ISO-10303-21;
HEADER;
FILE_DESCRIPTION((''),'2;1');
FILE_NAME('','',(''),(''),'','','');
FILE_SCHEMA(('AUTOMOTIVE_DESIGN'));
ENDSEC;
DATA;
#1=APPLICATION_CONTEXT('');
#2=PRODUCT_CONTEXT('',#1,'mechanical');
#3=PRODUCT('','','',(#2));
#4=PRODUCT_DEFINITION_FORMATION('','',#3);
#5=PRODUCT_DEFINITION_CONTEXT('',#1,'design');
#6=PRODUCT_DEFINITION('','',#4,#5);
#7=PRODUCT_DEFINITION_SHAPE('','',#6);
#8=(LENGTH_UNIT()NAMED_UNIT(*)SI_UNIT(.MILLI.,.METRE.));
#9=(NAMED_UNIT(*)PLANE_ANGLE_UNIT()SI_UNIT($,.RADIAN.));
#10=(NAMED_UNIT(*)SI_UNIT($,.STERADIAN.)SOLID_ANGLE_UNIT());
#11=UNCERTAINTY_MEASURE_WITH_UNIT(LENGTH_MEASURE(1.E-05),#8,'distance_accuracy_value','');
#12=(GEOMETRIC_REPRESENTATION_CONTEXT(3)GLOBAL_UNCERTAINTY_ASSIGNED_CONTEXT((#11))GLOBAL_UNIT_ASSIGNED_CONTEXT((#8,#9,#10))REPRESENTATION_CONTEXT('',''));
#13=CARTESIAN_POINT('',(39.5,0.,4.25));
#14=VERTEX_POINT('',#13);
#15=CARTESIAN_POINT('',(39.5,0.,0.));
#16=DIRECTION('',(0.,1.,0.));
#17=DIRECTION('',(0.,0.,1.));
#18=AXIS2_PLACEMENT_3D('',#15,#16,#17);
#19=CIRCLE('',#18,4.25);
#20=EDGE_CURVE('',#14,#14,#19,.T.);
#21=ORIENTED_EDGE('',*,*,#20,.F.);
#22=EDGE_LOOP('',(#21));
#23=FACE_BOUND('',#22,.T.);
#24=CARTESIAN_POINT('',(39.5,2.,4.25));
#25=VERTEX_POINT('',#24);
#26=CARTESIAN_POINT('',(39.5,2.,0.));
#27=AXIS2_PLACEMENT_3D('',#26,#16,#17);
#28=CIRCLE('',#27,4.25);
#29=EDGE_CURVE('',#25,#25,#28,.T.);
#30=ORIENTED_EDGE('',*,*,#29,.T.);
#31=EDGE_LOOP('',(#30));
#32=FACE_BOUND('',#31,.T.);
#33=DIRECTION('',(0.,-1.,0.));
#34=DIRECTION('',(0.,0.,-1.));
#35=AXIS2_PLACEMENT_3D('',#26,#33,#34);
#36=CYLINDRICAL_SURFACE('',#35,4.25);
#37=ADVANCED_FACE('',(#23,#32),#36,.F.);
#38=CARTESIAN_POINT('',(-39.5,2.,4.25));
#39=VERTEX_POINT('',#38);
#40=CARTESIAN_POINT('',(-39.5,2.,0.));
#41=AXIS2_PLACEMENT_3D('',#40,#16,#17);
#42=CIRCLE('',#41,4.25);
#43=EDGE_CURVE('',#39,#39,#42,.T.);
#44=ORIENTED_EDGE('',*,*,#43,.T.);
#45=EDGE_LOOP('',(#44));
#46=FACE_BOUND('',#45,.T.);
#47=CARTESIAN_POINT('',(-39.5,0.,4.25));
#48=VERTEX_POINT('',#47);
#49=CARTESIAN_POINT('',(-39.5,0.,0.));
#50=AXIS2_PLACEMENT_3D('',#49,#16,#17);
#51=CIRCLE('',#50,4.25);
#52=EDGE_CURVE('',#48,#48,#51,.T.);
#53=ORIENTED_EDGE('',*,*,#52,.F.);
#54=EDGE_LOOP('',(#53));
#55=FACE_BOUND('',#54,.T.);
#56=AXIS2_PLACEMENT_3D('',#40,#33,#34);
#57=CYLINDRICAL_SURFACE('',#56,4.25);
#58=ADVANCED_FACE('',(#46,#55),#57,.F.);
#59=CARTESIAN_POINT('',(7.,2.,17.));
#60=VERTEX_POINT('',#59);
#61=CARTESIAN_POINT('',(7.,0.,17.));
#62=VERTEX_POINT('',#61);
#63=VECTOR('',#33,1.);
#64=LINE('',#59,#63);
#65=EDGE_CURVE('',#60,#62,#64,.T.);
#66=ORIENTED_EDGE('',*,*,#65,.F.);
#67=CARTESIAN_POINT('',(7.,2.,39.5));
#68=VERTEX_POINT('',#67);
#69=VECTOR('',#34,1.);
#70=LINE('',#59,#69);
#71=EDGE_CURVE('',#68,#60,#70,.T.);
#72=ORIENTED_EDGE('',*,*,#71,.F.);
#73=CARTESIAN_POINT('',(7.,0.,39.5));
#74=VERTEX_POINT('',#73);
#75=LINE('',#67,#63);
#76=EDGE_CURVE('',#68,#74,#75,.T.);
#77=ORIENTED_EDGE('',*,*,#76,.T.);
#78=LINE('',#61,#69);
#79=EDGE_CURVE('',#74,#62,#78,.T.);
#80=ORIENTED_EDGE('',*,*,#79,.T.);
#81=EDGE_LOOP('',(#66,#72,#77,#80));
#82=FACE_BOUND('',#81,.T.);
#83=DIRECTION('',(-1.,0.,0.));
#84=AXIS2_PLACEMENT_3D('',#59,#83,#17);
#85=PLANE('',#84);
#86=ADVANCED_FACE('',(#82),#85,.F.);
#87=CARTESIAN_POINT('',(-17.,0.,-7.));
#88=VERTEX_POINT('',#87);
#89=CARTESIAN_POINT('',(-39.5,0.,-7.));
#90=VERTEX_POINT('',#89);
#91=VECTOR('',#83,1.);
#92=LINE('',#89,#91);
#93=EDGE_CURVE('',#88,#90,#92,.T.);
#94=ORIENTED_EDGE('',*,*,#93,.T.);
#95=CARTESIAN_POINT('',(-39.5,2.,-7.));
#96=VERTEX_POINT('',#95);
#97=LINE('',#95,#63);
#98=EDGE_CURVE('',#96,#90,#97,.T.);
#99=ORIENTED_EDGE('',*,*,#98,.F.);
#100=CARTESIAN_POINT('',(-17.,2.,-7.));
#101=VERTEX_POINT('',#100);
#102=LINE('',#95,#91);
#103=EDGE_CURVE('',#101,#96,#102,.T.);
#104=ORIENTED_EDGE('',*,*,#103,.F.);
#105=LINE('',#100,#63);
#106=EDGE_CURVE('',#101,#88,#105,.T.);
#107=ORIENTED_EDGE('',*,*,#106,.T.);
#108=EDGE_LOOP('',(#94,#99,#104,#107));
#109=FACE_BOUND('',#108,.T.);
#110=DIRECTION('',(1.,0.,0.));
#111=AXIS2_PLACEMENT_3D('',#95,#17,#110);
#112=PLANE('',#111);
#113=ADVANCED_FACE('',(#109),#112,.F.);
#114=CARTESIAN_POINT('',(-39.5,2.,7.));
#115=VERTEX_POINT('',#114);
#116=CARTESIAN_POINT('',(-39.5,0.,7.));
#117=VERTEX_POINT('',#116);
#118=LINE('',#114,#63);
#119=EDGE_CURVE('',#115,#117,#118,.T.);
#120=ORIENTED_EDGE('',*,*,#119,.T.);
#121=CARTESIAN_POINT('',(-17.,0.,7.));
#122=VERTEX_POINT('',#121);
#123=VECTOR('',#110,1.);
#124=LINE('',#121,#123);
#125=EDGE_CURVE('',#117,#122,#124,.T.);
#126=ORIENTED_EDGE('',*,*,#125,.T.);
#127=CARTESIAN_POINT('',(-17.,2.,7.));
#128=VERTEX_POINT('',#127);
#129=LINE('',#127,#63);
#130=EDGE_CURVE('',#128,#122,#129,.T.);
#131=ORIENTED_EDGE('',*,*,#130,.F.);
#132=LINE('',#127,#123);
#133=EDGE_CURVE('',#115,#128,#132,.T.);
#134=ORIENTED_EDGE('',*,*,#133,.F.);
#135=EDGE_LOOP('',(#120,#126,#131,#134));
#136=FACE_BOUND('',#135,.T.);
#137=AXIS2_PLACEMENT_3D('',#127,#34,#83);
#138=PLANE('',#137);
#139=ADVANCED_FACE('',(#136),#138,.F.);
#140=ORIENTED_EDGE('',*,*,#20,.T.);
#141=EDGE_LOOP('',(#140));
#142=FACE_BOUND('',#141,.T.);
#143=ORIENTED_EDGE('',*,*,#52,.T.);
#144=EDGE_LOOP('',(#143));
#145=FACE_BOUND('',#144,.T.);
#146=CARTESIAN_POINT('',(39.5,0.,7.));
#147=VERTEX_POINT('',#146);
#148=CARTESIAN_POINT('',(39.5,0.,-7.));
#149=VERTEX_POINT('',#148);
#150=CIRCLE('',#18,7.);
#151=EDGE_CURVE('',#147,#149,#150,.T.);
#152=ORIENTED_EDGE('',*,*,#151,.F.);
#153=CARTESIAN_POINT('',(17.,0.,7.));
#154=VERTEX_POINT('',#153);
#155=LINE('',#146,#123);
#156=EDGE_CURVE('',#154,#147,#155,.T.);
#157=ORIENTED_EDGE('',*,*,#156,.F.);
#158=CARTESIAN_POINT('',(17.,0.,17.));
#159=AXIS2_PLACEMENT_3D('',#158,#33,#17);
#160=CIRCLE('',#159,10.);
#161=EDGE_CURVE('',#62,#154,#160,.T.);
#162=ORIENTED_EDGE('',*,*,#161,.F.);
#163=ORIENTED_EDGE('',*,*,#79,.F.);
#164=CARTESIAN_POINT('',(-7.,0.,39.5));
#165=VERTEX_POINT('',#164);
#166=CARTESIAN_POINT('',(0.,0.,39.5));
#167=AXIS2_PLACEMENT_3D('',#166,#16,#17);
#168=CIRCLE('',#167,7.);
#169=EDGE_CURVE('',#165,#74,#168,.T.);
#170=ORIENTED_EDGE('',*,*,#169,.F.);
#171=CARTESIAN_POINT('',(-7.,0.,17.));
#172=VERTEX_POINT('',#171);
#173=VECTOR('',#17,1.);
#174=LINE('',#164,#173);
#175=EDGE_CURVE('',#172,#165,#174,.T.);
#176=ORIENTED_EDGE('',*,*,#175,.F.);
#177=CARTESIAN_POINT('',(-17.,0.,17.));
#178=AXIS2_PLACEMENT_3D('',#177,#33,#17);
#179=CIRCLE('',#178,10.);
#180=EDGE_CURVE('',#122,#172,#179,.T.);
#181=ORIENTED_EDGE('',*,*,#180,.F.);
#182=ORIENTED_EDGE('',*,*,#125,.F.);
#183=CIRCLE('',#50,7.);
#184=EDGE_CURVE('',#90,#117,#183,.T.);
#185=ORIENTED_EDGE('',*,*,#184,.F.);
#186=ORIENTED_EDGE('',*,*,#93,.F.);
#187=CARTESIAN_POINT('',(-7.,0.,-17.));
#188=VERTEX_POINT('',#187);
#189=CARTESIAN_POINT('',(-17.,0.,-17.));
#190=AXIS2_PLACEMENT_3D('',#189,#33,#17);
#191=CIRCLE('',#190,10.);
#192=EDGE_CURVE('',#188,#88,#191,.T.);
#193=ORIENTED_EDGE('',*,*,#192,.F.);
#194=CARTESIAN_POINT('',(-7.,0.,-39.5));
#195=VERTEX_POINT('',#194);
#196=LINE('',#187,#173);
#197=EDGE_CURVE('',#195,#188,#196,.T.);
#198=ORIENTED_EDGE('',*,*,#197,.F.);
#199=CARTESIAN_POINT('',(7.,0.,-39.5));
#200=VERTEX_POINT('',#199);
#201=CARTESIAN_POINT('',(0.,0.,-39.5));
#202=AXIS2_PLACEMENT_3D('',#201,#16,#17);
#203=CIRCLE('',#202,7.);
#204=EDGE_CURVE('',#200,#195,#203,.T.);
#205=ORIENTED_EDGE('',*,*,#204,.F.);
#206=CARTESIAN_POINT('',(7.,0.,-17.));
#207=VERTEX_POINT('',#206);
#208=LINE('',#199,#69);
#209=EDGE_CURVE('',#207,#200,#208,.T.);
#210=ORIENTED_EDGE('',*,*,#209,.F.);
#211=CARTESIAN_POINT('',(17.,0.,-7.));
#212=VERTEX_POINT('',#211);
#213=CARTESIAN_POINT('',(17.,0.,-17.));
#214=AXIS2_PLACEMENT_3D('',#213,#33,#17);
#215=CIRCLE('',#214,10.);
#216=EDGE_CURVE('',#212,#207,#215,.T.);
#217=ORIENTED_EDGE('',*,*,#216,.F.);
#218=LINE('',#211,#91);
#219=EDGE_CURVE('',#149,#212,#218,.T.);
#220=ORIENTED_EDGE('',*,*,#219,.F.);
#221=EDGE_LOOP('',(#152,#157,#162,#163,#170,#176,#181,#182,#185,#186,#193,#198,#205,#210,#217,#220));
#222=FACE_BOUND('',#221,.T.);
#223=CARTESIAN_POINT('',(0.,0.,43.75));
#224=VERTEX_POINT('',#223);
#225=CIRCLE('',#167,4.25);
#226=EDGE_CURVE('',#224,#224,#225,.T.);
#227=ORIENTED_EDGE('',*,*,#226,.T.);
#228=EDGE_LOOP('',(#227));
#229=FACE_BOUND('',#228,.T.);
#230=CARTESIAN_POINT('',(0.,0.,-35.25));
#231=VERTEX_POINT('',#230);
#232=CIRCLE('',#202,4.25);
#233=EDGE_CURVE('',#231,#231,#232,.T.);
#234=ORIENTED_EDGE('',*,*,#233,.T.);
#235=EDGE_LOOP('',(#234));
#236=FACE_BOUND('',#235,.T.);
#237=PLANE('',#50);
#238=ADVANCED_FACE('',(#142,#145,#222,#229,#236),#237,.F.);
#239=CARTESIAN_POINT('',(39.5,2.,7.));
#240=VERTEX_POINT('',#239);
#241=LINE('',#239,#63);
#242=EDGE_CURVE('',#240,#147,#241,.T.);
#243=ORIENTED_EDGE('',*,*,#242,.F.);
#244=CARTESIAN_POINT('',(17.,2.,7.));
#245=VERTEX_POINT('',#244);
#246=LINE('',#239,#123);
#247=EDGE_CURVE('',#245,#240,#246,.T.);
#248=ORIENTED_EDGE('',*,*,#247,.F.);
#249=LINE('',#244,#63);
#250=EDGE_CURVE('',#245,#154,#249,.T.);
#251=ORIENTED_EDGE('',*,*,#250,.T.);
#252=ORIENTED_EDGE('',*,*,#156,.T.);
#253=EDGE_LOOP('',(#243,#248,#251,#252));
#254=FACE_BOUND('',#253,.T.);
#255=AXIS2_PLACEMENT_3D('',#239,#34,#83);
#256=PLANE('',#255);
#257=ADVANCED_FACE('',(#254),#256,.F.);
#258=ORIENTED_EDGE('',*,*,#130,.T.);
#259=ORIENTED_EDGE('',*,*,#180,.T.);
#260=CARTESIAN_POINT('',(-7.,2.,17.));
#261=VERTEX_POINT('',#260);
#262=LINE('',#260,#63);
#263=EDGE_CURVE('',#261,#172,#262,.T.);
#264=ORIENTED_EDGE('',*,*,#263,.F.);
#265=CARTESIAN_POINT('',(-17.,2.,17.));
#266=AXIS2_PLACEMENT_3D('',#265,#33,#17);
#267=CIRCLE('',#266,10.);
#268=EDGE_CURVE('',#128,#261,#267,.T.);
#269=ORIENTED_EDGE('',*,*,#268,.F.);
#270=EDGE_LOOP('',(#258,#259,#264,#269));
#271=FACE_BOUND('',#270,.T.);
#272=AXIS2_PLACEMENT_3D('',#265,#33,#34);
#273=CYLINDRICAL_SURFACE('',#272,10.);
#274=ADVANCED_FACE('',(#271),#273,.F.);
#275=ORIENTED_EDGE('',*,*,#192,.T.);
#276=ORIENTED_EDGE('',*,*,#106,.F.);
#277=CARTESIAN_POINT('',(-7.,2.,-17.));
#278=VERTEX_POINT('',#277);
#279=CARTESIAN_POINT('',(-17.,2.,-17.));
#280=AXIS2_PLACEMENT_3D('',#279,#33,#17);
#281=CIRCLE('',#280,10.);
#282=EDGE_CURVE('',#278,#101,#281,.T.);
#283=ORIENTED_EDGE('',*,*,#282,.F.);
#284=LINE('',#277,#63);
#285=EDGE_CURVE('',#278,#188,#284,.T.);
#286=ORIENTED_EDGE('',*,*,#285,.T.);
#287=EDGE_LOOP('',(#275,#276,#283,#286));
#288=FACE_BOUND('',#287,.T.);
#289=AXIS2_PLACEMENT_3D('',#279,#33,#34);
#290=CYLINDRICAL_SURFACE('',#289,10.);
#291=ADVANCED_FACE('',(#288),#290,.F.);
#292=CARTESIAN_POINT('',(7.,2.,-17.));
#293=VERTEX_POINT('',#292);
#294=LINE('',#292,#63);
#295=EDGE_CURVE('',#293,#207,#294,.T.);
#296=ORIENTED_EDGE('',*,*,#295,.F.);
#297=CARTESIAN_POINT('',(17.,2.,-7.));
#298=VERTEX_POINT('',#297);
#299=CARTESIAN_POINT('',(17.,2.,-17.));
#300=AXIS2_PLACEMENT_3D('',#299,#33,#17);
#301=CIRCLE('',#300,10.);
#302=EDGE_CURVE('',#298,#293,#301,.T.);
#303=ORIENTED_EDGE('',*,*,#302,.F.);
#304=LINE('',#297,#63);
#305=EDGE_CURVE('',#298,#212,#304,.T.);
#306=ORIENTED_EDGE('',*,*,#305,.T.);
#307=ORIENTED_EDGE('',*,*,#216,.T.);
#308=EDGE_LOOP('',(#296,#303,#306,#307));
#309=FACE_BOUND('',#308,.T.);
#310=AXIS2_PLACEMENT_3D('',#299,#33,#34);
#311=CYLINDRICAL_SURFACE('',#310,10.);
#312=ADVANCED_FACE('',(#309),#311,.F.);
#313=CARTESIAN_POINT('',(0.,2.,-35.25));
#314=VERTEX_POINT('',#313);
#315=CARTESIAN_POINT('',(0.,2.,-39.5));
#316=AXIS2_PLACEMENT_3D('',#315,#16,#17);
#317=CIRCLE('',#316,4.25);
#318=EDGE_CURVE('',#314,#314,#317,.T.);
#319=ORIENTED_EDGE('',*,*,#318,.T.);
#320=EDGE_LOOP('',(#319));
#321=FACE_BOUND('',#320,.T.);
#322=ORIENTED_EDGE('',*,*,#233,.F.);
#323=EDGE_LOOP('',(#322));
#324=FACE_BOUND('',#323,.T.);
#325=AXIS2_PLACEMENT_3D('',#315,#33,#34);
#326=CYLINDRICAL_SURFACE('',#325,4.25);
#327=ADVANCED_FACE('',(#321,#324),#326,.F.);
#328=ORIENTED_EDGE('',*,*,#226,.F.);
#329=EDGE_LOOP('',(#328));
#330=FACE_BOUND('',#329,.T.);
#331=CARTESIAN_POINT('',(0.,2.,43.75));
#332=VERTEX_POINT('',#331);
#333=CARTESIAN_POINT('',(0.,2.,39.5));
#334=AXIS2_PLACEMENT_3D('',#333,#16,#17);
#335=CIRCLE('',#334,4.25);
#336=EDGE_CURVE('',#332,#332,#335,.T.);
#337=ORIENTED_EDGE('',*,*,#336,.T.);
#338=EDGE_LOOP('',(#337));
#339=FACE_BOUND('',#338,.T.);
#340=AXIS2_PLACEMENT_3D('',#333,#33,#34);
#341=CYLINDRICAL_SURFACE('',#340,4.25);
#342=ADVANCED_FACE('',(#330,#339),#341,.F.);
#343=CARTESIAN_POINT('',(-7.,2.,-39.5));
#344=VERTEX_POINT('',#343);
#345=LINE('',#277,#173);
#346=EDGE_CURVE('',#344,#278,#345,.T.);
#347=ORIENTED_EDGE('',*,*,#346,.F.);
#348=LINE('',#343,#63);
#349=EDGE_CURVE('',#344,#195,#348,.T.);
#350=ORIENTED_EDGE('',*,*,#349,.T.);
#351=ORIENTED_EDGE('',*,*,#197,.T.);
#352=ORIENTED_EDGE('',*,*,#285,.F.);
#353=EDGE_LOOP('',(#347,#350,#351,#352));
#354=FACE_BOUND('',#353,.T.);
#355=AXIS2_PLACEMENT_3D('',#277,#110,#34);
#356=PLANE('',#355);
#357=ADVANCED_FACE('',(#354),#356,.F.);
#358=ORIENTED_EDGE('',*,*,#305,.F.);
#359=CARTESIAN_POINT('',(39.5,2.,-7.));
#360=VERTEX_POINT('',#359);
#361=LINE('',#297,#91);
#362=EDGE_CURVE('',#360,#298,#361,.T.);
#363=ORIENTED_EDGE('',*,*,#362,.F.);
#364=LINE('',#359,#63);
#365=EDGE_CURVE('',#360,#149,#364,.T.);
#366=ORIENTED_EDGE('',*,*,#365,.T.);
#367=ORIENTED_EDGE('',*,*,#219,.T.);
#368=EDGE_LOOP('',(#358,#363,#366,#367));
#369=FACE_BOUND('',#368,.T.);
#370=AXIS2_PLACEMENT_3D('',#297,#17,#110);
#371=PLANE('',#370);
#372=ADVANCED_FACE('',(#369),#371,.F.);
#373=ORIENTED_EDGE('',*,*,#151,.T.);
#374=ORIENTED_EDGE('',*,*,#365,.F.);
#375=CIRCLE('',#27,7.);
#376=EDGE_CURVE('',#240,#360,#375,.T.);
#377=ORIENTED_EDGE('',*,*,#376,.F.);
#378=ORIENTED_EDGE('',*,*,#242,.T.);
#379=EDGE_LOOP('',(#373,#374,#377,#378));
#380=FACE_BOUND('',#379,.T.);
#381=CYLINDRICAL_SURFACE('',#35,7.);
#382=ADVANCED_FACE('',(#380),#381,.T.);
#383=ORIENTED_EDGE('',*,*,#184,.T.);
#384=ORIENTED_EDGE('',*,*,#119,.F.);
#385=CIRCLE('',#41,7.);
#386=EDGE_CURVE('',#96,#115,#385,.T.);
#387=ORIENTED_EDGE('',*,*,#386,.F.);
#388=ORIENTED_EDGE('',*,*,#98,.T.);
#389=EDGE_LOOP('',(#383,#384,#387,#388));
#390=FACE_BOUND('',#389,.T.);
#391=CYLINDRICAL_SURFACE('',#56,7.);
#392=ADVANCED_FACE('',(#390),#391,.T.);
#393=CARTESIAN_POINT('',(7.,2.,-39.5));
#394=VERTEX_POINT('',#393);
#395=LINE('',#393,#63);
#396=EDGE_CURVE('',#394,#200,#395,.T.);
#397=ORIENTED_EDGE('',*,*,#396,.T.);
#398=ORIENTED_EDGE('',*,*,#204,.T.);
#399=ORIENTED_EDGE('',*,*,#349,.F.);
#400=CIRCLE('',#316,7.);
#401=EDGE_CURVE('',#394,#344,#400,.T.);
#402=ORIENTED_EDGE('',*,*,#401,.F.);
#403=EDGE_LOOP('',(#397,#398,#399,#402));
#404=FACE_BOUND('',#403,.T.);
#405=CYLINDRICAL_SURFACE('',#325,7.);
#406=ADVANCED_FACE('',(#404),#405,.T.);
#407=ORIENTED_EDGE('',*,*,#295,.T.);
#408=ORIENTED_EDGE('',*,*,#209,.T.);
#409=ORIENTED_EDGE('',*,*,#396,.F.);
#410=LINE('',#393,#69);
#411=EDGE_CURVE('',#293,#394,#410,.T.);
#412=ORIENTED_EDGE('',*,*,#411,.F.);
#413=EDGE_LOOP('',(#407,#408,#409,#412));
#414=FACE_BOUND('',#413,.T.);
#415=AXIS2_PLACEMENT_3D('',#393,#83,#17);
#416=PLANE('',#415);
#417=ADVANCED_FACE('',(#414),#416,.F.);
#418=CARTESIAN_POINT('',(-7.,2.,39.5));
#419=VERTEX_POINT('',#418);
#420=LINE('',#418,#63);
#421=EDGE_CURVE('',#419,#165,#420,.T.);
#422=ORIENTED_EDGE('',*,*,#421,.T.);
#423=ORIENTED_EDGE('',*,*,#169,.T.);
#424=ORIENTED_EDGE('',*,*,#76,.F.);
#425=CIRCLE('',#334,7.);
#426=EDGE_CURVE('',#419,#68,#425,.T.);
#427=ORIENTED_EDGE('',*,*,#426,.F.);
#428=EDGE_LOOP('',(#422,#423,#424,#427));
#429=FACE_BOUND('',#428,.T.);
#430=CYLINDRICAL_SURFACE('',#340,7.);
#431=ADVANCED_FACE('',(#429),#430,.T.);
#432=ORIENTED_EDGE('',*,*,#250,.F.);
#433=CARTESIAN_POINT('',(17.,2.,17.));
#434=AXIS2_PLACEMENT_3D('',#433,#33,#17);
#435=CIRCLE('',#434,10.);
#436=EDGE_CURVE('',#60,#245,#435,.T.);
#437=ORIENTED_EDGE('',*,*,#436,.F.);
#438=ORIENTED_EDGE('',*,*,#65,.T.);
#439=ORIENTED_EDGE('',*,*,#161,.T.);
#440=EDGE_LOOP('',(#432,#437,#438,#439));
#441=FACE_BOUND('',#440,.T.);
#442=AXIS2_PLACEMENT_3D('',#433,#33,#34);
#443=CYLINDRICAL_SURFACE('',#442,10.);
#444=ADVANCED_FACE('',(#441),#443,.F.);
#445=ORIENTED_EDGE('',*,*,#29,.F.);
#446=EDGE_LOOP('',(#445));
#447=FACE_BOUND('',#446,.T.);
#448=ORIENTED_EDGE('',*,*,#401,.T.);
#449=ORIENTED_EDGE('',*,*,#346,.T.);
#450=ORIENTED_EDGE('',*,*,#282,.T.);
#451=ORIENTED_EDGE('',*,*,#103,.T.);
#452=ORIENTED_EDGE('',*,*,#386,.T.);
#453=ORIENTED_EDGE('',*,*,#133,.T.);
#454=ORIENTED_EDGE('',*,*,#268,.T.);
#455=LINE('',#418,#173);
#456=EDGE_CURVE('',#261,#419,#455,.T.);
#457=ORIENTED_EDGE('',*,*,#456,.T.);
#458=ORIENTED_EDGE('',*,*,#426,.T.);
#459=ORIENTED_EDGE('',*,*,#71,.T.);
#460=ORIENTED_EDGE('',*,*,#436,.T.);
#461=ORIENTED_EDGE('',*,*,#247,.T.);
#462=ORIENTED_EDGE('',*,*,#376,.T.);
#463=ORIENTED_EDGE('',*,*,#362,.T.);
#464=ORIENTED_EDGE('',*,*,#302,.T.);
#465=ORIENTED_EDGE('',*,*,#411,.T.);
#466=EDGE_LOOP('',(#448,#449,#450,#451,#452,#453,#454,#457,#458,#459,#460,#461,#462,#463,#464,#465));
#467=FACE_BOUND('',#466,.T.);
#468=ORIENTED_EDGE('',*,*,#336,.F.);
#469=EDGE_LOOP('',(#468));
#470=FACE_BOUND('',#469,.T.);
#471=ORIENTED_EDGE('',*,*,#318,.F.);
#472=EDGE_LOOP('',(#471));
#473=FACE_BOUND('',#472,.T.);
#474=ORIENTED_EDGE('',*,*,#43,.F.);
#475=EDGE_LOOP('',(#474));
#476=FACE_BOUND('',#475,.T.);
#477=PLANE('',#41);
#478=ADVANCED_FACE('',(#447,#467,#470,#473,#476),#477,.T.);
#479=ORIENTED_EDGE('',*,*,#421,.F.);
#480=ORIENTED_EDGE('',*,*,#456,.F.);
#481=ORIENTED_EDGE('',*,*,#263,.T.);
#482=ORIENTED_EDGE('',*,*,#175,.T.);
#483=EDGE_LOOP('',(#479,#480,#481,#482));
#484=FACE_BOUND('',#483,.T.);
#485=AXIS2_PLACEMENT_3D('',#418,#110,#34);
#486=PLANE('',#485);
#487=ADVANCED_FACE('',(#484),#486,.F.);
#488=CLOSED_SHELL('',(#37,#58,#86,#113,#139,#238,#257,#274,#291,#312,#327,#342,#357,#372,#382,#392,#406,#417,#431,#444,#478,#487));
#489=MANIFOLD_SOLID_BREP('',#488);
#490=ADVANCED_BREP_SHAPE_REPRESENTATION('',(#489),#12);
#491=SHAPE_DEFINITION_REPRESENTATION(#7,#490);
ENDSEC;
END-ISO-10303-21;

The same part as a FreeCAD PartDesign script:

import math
import FreeCAD as App
import Part
import Sketcher
from FreeCAD import Vector

doc = App.newDocument("Part")
body = doc.addObject("PartDesign::Body", "Body")

sketch1 = body.newObject("Sketcher::SketchObject", "Sketch")
sketch1.AttachmentSupport = (doc.getObject("XZ_Plane"), [""])
sketch1.MapMode = "FlatFace"
sketch1.addGeometry([
    Part.LineSegment(Vector(-17, -7, 0), Vector(-39.5, -7, 0)),
    Part.ArcOfCircle(Part.Circle(Vector(-39.5, 0, 0), Vector(0, 0, 1), 7), math.radians(90), math.radians(270)),
    Part.LineSegment(Vector(-39.5, 7, 0), Vector(-17, 7, 0)),
    Part.ArcOfCircle(Part.Circle(Vector(-17, 17, 0), Vector(0, 0, 1), 10), math.radians(-90), math.radians(0)),
    Part.LineSegment(Vector(-7, 17, 0), Vector(-7, 39.5, 0)),
    Part.ArcOfCircle(Part.Circle(Vector(0, 39.5, 0), Vector(0, 0, 1), 7), math.radians(0), math.radians(180)),
    Part.LineSegment(Vector(7, 39.5, 0), Vector(7, 17, 0)),
    Part.ArcOfCircle(Part.Circle(Vector(17, 17, 0), Vector(0, 0, 1), 10), math.radians(180), math.radians(270)),
    Part.LineSegment(Vector(17, 7, 0), Vector(39.5, 7, 0)),
    Part.ArcOfCircle(Part.Circle(Vector(39.5, 0, 0), Vector(0, 0, 1), 7), math.radians(-90), math.radians(90)),
    Part.LineSegment(Vector(39.5, -7, 0), Vector(17, -7, 0)),
    Part.ArcOfCircle(Part.Circle(Vector(17, -17, 0), Vector(0, 0, 1), 10), math.radians(90), math.radians(180)),
    Part.LineSegment(Vector(7, -17, 0), Vector(7, -39.5, 0)),
    Part.ArcOfCircle(Part.Circle(Vector(0, -39.5, 0), Vector(0, 0, 1), 7), math.radians(180), math.radians(360)),
    Part.LineSegment(Vector(-7, -39.5, 0), Vector(-7, -17, 0)),
    Part.ArcOfCircle(Part.Circle(Vector(-17, -17, 0), Vector(0, 0, 1), 10), math.radians(0), math.radians(90)),
    Part.Circle(Vector(0, 39.5, 0), Vector(0, 0, 1), 4.2),
    Part.Circle(Vector(39.5, 0, 0), Vector(0, 0, 1), 4.2),
    Part.Circle(Vector(-39.5, 0, 0), Vector(0, 0, 1), 4.2),
    Part.Circle(Vector(0, -39.5, 0), Vector(0, 0, 1), 4.2),
], False)
sketch1.addConstraint([
    Sketcher.Constraint("Tangent", 0, 2, 1, 2),
    Sketcher.Constraint("Tangent", 1, 1, 2, 1),
    Sketcher.Constraint("Tangent", 2, 2, 3, 1),
    Sketcher.Constraint("Tangent", 3, 2, 4, 1),
    Sketcher.Constraint("Tangent", 4, 2, 5, 2),
    Sketcher.Constraint("Tangent", 5, 1, 6, 1),
    Sketcher.Constraint("Tangent", 6, 2, 7, 1),
    Sketcher.Constraint("Tangent", 7, 2, 8, 1),
    Sketcher.Constraint("Tangent", 8, 2, 9, 2),
    Sketcher.Constraint("Tangent", 9, 1, 10, 1),
    Sketcher.Constraint("Tangent", 10, 2, 11, 1),
    Sketcher.Constraint("Tangent", 11, 2, 12, 1),
    Sketcher.Constraint("Tangent", 12, 2, 13, 2),
    Sketcher.Constraint("Tangent", 13, 1, 14, 1),
    Sketcher.Constraint("Tangent", 14, 2, 15, 1),
    Sketcher.Constraint("Tangent", 15, 2, 0, 1),
    Sketcher.Constraint("Horizontal", 0),
    Sketcher.Constraint("Horizontal", 2),
    Sketcher.Constraint("Vertical", 4),
    Sketcher.Constraint("Vertical", 6),
    Sketcher.Constraint("Horizontal", 8),
    Sketcher.Constraint("Horizontal", 10),
    Sketcher.Constraint("Vertical", 12),
    Sketcher.Constraint("Vertical", 14),
    Sketcher.Constraint("Coincident", 16, 3, 5, 3),
    Sketcher.Constraint("Coincident", 17, 3, 9, 3),
    Sketcher.Constraint("Coincident", 18, 3, 1, 3),
    Sketcher.Constraint("Coincident", 19, 3, 13, 3),
    Sketcher.Constraint("Equal", 1, 5),
    Sketcher.Constraint("Equal", 3, 7),
    Sketcher.Constraint("Equal", 5, 9),
    Sketcher.Constraint("Equal", 7, 11),
    Sketcher.Constraint("Equal", 9, 13),
    Sketcher.Constraint("Equal", 11, 15),
    Sketcher.Constraint("Equal", 16, 17),
    Sketcher.Constraint("Equal", 17, 18),
    Sketcher.Constraint("Equal", 18, 19),
    Sketcher.Constraint("Symmetric", 1, 3, 9, 3, -1, 1),
    Sketcher.Constraint("Symmetric", 5, 3, 13, 3, -1, 1),
    Sketcher.Constraint("Symmetric", 3, 3, 7, 3, -2),
    Sketcher.Constraint("Equal", 10, 4),
    Sketcher.Constraint("Radius", 1, 7.0),
    Sketcher.Constraint("Radius", 3, 10.0),
    Sketcher.Constraint("Diameter", 16, 8.5),
    Sketcher.Constraint("DistanceX", 0, 2, 0, 1, 22.5),
])
pad1 = body.newObject("PartDesign::Pad", "Pad")
pad1.Profile = sketch1
pad1.Length = 2
pad1.Reversed = True

doc.recompute()
